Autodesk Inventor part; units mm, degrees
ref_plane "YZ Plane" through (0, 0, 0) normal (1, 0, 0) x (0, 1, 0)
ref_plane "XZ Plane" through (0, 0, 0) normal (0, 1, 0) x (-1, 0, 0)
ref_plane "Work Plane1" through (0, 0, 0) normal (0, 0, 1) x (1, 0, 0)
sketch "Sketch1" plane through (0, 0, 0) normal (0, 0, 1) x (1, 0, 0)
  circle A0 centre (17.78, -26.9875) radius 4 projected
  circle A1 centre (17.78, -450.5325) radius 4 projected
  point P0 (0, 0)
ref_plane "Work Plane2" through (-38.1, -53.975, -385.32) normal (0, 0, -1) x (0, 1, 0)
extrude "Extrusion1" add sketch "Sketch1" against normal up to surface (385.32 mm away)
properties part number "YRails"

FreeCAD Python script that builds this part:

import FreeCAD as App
import Part
import Sketcher

doc = App.newDocument("Part")
params = doc.addObject("Spreadsheet::Sheet", "Params")
for row, (alias, value) in enumerate([
    ("sketch1_diameter", "8 mm"),
    ("pad1_length", "385.32 mm"),
], start=1):
    params.set(f"A{row}", alias)
    params.set(f"B{row}", "=" + value)
    params.setAlias(f"B{row}", alias)

body = doc.addObject("PartDesign::Body", "Body")
body.AllowCompound = True

# Sketch on XY plane
sketch1 = body.newObject("Sketcher::SketchObject", "Sketch")
sketch1.AttachmentSupport = (doc.getObject("XY_Plane"), [""])
sketch1.MapMode = "FlatFace"
sketch1.addGeometry(Part.Circle(App.Vector(17.8, -27, 0), App.Vector(0, 0, 1), 4), False)
sketch1.addGeometry(Part.Circle(App.Vector(17.8, -450.5, 0), App.Vector(0, 0, 1), 4), False)
sketch1.addConstraint(Sketcher.Constraint("Equal", 0, 1))
sketch1.addConstraint(Sketcher.Constraint("Vertical", 0, 3, 1, 3))
sketch1.addConstraint(Sketcher.Constraint("Diameter", 0, 8.0))
sketch1.addConstraint(Sketcher.Constraint("DistanceX", -1, 1, 0, 3, 17.78))
sketch1.addConstraint(Sketcher.Constraint("DistanceY", 1, 3, 0, 3, 423.545))
sketch1.addConstraint(Sketcher.Constraint("DistanceY", 0, 3, -1, 1, 26.9875))
sketch1.setExpression("Constraints[2]", "Params.sketch1_diameter")
pad1 = body.newObject("PartDesign::Pad", "Pad")
pad1.Profile = sketch1
pad1.setExpression("Length", "Params.pad1_length")
pad1.Reversed = True

doc.recompute()
